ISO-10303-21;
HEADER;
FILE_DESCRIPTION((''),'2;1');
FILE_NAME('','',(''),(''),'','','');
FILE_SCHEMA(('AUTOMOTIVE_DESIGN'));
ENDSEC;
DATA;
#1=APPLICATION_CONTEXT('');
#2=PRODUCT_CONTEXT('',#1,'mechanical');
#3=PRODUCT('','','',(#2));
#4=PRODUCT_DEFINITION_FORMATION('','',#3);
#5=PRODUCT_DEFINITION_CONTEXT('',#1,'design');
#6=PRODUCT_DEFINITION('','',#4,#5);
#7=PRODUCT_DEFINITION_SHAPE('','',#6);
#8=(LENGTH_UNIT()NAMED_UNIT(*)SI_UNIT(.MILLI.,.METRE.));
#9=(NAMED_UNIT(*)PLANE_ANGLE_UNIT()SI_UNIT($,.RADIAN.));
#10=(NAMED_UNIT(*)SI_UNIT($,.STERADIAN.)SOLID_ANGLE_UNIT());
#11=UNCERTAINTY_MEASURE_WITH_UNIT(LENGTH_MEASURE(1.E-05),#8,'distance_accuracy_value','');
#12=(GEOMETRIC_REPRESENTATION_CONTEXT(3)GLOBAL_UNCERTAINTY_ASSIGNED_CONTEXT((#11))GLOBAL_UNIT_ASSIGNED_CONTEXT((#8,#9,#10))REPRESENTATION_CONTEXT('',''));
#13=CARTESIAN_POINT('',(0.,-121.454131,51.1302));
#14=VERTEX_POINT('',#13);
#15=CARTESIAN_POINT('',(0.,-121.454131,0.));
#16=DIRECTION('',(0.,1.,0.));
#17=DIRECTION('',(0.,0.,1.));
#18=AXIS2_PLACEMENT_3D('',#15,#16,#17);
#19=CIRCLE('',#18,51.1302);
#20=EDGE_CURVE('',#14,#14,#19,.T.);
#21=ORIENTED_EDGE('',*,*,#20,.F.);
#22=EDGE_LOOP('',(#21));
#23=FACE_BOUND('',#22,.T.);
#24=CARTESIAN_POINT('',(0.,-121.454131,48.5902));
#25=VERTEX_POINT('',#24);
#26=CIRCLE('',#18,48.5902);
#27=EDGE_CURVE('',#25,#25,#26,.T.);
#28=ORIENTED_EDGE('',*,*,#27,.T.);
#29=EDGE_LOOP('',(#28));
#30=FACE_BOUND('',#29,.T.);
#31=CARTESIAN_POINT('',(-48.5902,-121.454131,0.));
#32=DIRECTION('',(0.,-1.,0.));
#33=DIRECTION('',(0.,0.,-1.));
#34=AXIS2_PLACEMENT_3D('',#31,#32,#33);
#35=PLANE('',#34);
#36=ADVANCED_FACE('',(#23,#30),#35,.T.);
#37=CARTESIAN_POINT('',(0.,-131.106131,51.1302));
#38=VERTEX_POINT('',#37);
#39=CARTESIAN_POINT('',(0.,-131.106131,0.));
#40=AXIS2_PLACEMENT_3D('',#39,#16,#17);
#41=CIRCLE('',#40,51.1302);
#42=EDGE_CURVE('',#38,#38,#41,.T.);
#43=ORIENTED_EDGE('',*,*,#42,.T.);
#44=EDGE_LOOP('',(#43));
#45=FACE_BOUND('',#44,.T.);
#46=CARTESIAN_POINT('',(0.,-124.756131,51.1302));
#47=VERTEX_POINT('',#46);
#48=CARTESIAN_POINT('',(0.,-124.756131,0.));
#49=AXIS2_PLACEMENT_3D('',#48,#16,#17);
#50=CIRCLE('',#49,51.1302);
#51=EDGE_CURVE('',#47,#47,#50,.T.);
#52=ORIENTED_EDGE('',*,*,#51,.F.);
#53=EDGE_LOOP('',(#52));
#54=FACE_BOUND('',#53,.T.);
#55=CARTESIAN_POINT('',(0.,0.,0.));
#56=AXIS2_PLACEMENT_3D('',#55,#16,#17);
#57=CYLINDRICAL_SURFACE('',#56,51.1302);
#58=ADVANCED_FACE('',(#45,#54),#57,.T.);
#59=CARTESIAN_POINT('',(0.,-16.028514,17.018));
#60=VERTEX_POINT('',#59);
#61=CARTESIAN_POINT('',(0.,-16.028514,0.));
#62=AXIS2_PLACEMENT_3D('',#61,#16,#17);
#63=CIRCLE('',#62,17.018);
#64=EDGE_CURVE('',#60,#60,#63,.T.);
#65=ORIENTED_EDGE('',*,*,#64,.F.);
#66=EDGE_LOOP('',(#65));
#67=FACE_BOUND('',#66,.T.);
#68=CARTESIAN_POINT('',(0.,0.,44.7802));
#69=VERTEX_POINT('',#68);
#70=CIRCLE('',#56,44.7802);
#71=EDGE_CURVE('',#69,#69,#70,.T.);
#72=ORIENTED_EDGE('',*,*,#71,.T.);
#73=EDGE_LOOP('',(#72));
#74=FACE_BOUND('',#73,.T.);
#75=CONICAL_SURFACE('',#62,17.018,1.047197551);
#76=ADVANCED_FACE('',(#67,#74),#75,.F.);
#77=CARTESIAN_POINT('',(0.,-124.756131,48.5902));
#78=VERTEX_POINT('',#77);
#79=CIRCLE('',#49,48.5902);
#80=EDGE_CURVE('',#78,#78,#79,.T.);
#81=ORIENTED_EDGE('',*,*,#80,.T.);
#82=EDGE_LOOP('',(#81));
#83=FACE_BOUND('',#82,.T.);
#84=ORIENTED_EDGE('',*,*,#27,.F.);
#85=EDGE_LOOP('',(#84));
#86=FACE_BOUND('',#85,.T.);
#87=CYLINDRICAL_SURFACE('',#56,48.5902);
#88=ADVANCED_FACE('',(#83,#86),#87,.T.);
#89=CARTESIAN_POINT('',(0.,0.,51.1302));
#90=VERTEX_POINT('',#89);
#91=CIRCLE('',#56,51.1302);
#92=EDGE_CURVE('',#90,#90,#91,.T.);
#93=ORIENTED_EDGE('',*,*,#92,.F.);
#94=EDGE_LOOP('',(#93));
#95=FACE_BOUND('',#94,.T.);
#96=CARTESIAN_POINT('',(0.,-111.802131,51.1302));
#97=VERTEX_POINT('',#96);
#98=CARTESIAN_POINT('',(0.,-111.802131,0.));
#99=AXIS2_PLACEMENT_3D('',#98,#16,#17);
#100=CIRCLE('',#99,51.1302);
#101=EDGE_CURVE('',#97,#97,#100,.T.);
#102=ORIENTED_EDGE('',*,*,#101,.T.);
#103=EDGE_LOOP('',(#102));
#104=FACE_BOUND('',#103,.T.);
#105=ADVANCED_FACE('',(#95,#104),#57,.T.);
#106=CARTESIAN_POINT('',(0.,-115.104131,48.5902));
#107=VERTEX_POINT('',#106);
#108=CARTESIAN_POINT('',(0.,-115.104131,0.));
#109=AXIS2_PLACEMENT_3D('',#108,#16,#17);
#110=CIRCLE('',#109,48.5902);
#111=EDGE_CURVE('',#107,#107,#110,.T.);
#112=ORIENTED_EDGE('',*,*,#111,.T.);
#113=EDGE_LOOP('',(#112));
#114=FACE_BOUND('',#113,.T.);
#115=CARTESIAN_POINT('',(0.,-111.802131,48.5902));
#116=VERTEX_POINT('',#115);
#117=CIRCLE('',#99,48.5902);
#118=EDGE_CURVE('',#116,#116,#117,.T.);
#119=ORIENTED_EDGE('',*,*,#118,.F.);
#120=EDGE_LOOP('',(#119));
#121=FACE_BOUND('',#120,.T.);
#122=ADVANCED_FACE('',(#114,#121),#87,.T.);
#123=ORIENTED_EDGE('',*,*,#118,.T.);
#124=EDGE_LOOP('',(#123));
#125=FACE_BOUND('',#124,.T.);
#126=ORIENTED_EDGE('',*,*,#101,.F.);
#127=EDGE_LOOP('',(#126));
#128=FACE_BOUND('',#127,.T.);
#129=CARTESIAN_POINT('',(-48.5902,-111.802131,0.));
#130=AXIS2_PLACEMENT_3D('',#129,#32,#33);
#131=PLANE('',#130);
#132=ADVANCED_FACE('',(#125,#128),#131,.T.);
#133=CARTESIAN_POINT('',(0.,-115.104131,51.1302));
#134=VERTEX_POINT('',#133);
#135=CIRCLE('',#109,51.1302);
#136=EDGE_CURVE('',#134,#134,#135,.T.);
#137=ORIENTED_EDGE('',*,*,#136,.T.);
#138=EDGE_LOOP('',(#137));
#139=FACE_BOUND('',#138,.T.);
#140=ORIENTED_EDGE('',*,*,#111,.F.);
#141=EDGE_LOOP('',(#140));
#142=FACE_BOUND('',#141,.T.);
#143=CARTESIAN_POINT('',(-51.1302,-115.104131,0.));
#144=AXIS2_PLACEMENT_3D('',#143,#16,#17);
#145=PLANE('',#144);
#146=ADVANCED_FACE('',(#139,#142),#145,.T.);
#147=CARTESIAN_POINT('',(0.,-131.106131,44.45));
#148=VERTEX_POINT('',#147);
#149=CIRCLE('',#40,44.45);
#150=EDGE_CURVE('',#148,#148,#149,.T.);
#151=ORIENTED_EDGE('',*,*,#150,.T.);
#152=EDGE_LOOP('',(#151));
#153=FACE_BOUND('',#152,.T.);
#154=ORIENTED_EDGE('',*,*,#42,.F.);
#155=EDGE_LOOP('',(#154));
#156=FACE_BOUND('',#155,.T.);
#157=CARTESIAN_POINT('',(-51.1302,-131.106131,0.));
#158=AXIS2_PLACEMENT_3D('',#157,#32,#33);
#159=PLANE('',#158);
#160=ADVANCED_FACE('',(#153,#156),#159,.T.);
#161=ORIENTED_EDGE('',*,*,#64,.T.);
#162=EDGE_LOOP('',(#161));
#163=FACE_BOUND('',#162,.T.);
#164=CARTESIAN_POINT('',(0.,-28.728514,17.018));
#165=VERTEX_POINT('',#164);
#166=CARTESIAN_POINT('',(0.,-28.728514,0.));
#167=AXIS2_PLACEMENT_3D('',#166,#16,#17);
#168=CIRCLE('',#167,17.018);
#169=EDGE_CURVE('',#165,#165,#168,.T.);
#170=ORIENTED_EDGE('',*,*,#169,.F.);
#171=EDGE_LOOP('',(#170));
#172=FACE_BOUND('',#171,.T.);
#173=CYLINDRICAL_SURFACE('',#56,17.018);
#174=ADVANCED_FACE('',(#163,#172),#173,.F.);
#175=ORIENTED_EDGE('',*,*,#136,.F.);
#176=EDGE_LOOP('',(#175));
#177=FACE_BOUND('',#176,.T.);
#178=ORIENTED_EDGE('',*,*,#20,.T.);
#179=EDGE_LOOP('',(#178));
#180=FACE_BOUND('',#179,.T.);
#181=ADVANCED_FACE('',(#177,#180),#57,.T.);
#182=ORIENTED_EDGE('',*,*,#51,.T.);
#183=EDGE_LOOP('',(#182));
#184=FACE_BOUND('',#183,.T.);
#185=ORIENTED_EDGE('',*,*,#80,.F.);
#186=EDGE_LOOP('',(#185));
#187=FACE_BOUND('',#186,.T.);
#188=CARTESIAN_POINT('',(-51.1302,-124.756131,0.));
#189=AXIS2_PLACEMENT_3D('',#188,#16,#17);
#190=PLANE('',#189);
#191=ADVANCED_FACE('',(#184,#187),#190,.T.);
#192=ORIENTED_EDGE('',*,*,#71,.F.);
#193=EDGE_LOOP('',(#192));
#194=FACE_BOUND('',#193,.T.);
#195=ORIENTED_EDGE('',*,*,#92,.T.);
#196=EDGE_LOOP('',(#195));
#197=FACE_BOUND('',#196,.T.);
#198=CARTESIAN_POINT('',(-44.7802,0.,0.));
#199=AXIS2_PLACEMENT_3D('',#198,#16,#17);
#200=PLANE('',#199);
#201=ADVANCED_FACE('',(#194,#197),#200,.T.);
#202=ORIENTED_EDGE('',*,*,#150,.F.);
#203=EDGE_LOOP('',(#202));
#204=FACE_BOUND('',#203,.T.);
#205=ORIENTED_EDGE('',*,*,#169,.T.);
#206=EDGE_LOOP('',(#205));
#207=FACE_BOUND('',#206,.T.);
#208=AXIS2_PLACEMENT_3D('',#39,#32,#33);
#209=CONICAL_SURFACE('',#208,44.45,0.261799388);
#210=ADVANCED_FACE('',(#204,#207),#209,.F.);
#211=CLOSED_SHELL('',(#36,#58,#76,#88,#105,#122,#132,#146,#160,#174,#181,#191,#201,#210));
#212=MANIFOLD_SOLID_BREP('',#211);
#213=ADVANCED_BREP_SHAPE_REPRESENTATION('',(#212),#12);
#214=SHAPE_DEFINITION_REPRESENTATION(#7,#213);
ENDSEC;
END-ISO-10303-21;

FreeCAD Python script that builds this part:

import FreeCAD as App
import Part
import Sketcher
from FreeCAD import Vector
Q = App.Units.Quantity

doc = App.newDocument("Part")
body = doc.addObject("PartDesign::Body", "Body")

# Sketch on XY plane
sketch1 = body.newObject("Sketcher::SketchObject", "Sketch")
sketch1.AttachmentSupport = (doc.getObject("XY_Plane"), [""])
sketch1.MapMode = "FlatFace"
sketch1.addGeometry([
    Part.LineSegment(Vector(-51.1, 0, 0), Vector(-51.1, -111.8, 0)),  # 0
    Part.LineSegment(Vector(-51.1, -111.8, 0), Vector(-48.6, -111.8, 0)),  # 1
    Part.LineSegment(Vector(-48.6, -111.8, 0), Vector(-48.6, -115.1, 0)),  # 2
    Part.LineSegment(Vector(-48.6, -115.1, 0), Vector(-51.1, -115.1, 0)),  # 3
    Part.LineSegment(Vector(-51.1, -115.1, 0), Vector(-51.1, -121.5, 0)),  # 4
    Part.LineSegment(Vector(-51.1, -121.5, 0), Vector(-48.6, -121.5, 0)),  # 5
    Part.LineSegment(Vector(-48.6, -121.5, 0), Vector(-48.6, -124.8, 0)),  # 6
    Part.LineSegment(Vector(-48.6, -124.8, 0), Vector(-51.1, -124.8, 0)),  # 7
    Part.LineSegment(Vector(-51.1, -124.8, 0), Vector(-51.1, -131.1, 0)),  # 8
    Part.LineSegment(Vector(-51.1, -131.1, 0), Vector(-44.5, -131.1, 0)),  # 9
    Part.LineSegment(Vector(-44.5, -131.1, 0), Vector(-17, -28.7, 0)),  # 10
    Part.LineSegment(Vector(-17, -28.7, 0), Vector(-17, -16, 0)),  # 11
    Part.LineSegment(Vector(-17, -16, 0), Vector(-44.8, 0, 0)),  # 12
    Part.LineSegment(Vector(-44.8, 0, 0), Vector(-51.1, 0, 0)),  # 13
], False)
sketch1.addConstraint([
    Sketcher.Constraint("Coincident", 0, 2, 1, 1),
    Sketcher.Constraint("Coincident", 1, 2, 2, 1),
    Sketcher.Constraint("Coincident", 2, 2, 3, 1),
    Sketcher.Constraint("Coincident", 3, 2, 4, 1),
    Sketcher.Constraint("Coincident", 4, 2, 5, 1),
    Sketcher.Constraint("Coincident", 5, 2, 6, 1),
    Sketcher.Constraint("Coincident", 6, 2, 7, 1),
    Sketcher.Constraint("Coincident", 7, 2, 8, 1),
    Sketcher.Constraint("Coincident", 8, 2, 9, 1),
    Sketcher.Constraint("Coincident", 9, 2, 10, 1),
    Sketcher.Constraint("Coincident", 10, 2, 11, 1),
    Sketcher.Constraint("Coincident", 11, 2, 12, 1),
    Sketcher.Constraint("Coincident", 12, 2, 13, 1),
    Sketcher.Constraint("Coincident", 13, 2, 0, 1),
    Sketcher.Constraint("Vertical", 0),
    Sketcher.Constraint("Horizontal", 1),
    Sketcher.Constraint("Vertical", 2),
    Sketcher.Constraint("Horizontal", 3),
    Sketcher.Constraint("Vertical", 4),
    Sketcher.Constraint("Horizontal", 5),
    Sketcher.Constraint("Vertical", 6),
    Sketcher.Constraint("Horizontal", 7),
    Sketcher.Constraint("Vertical", 8),
    Sketcher.Constraint("Horizontal", 9),
    Sketcher.Constraint("Vertical", 11),
    Sketcher.Constraint("Horizontal", 13),
    Sketcher.Constraint("PointOnObject", 12, 2, -1),
    Sketcher.Constraint("Vertical", 0, 2, 3, 2),
    Sketcher.Constraint("Vertical", 2, 2, 5, 2),
    Sketcher.Constraint("Vertical", 4, 2, 7, 2),
    Sketcher.Constraint("Equal", 13, 4),
    Sketcher.Constraint("Equal", 2, 6),
    Sketcher.Constraint("Equal", 4, 8),
    Sketcher.Constraint("DistanceX", 1, 1, 1, 2, Q("0.1 in")),
    Sketcher.Constraint("DistanceY", 11, 1, 11, 2, Q("0.5 in")),
    Sketcher.Constraint("Angle", 10, Q("75 deg")),
    Sketcher.Constraint("Angle", 12, Q("150 deg")),
    Sketcher.Constraint("DistanceX", 13, 2, 13, 1, Q("0.25 in")),
    Sketcher.Constraint("DistanceY", 2, 2, 2, 1, Q("0.13 in")),
    Sketcher.Constraint("DistanceX", 9, 1, 9, 2, Q("0.263 in")),
    Sketcher.Constraint("DistanceX", 9, 2, -1, 1, Q("1.75 in")),
    Sketcher.Constraint("DistanceX", 10, 2, -1, 1, Q("0.67 in")),
])
revolution = body.newObject("PartDesign::Revolution", "Revolution")
revolution.Profile = sketch1
revolution.ReferenceAxis = (sketch1, ["V_Axis"])
revolution.Angle = 360

doc.recompute()
